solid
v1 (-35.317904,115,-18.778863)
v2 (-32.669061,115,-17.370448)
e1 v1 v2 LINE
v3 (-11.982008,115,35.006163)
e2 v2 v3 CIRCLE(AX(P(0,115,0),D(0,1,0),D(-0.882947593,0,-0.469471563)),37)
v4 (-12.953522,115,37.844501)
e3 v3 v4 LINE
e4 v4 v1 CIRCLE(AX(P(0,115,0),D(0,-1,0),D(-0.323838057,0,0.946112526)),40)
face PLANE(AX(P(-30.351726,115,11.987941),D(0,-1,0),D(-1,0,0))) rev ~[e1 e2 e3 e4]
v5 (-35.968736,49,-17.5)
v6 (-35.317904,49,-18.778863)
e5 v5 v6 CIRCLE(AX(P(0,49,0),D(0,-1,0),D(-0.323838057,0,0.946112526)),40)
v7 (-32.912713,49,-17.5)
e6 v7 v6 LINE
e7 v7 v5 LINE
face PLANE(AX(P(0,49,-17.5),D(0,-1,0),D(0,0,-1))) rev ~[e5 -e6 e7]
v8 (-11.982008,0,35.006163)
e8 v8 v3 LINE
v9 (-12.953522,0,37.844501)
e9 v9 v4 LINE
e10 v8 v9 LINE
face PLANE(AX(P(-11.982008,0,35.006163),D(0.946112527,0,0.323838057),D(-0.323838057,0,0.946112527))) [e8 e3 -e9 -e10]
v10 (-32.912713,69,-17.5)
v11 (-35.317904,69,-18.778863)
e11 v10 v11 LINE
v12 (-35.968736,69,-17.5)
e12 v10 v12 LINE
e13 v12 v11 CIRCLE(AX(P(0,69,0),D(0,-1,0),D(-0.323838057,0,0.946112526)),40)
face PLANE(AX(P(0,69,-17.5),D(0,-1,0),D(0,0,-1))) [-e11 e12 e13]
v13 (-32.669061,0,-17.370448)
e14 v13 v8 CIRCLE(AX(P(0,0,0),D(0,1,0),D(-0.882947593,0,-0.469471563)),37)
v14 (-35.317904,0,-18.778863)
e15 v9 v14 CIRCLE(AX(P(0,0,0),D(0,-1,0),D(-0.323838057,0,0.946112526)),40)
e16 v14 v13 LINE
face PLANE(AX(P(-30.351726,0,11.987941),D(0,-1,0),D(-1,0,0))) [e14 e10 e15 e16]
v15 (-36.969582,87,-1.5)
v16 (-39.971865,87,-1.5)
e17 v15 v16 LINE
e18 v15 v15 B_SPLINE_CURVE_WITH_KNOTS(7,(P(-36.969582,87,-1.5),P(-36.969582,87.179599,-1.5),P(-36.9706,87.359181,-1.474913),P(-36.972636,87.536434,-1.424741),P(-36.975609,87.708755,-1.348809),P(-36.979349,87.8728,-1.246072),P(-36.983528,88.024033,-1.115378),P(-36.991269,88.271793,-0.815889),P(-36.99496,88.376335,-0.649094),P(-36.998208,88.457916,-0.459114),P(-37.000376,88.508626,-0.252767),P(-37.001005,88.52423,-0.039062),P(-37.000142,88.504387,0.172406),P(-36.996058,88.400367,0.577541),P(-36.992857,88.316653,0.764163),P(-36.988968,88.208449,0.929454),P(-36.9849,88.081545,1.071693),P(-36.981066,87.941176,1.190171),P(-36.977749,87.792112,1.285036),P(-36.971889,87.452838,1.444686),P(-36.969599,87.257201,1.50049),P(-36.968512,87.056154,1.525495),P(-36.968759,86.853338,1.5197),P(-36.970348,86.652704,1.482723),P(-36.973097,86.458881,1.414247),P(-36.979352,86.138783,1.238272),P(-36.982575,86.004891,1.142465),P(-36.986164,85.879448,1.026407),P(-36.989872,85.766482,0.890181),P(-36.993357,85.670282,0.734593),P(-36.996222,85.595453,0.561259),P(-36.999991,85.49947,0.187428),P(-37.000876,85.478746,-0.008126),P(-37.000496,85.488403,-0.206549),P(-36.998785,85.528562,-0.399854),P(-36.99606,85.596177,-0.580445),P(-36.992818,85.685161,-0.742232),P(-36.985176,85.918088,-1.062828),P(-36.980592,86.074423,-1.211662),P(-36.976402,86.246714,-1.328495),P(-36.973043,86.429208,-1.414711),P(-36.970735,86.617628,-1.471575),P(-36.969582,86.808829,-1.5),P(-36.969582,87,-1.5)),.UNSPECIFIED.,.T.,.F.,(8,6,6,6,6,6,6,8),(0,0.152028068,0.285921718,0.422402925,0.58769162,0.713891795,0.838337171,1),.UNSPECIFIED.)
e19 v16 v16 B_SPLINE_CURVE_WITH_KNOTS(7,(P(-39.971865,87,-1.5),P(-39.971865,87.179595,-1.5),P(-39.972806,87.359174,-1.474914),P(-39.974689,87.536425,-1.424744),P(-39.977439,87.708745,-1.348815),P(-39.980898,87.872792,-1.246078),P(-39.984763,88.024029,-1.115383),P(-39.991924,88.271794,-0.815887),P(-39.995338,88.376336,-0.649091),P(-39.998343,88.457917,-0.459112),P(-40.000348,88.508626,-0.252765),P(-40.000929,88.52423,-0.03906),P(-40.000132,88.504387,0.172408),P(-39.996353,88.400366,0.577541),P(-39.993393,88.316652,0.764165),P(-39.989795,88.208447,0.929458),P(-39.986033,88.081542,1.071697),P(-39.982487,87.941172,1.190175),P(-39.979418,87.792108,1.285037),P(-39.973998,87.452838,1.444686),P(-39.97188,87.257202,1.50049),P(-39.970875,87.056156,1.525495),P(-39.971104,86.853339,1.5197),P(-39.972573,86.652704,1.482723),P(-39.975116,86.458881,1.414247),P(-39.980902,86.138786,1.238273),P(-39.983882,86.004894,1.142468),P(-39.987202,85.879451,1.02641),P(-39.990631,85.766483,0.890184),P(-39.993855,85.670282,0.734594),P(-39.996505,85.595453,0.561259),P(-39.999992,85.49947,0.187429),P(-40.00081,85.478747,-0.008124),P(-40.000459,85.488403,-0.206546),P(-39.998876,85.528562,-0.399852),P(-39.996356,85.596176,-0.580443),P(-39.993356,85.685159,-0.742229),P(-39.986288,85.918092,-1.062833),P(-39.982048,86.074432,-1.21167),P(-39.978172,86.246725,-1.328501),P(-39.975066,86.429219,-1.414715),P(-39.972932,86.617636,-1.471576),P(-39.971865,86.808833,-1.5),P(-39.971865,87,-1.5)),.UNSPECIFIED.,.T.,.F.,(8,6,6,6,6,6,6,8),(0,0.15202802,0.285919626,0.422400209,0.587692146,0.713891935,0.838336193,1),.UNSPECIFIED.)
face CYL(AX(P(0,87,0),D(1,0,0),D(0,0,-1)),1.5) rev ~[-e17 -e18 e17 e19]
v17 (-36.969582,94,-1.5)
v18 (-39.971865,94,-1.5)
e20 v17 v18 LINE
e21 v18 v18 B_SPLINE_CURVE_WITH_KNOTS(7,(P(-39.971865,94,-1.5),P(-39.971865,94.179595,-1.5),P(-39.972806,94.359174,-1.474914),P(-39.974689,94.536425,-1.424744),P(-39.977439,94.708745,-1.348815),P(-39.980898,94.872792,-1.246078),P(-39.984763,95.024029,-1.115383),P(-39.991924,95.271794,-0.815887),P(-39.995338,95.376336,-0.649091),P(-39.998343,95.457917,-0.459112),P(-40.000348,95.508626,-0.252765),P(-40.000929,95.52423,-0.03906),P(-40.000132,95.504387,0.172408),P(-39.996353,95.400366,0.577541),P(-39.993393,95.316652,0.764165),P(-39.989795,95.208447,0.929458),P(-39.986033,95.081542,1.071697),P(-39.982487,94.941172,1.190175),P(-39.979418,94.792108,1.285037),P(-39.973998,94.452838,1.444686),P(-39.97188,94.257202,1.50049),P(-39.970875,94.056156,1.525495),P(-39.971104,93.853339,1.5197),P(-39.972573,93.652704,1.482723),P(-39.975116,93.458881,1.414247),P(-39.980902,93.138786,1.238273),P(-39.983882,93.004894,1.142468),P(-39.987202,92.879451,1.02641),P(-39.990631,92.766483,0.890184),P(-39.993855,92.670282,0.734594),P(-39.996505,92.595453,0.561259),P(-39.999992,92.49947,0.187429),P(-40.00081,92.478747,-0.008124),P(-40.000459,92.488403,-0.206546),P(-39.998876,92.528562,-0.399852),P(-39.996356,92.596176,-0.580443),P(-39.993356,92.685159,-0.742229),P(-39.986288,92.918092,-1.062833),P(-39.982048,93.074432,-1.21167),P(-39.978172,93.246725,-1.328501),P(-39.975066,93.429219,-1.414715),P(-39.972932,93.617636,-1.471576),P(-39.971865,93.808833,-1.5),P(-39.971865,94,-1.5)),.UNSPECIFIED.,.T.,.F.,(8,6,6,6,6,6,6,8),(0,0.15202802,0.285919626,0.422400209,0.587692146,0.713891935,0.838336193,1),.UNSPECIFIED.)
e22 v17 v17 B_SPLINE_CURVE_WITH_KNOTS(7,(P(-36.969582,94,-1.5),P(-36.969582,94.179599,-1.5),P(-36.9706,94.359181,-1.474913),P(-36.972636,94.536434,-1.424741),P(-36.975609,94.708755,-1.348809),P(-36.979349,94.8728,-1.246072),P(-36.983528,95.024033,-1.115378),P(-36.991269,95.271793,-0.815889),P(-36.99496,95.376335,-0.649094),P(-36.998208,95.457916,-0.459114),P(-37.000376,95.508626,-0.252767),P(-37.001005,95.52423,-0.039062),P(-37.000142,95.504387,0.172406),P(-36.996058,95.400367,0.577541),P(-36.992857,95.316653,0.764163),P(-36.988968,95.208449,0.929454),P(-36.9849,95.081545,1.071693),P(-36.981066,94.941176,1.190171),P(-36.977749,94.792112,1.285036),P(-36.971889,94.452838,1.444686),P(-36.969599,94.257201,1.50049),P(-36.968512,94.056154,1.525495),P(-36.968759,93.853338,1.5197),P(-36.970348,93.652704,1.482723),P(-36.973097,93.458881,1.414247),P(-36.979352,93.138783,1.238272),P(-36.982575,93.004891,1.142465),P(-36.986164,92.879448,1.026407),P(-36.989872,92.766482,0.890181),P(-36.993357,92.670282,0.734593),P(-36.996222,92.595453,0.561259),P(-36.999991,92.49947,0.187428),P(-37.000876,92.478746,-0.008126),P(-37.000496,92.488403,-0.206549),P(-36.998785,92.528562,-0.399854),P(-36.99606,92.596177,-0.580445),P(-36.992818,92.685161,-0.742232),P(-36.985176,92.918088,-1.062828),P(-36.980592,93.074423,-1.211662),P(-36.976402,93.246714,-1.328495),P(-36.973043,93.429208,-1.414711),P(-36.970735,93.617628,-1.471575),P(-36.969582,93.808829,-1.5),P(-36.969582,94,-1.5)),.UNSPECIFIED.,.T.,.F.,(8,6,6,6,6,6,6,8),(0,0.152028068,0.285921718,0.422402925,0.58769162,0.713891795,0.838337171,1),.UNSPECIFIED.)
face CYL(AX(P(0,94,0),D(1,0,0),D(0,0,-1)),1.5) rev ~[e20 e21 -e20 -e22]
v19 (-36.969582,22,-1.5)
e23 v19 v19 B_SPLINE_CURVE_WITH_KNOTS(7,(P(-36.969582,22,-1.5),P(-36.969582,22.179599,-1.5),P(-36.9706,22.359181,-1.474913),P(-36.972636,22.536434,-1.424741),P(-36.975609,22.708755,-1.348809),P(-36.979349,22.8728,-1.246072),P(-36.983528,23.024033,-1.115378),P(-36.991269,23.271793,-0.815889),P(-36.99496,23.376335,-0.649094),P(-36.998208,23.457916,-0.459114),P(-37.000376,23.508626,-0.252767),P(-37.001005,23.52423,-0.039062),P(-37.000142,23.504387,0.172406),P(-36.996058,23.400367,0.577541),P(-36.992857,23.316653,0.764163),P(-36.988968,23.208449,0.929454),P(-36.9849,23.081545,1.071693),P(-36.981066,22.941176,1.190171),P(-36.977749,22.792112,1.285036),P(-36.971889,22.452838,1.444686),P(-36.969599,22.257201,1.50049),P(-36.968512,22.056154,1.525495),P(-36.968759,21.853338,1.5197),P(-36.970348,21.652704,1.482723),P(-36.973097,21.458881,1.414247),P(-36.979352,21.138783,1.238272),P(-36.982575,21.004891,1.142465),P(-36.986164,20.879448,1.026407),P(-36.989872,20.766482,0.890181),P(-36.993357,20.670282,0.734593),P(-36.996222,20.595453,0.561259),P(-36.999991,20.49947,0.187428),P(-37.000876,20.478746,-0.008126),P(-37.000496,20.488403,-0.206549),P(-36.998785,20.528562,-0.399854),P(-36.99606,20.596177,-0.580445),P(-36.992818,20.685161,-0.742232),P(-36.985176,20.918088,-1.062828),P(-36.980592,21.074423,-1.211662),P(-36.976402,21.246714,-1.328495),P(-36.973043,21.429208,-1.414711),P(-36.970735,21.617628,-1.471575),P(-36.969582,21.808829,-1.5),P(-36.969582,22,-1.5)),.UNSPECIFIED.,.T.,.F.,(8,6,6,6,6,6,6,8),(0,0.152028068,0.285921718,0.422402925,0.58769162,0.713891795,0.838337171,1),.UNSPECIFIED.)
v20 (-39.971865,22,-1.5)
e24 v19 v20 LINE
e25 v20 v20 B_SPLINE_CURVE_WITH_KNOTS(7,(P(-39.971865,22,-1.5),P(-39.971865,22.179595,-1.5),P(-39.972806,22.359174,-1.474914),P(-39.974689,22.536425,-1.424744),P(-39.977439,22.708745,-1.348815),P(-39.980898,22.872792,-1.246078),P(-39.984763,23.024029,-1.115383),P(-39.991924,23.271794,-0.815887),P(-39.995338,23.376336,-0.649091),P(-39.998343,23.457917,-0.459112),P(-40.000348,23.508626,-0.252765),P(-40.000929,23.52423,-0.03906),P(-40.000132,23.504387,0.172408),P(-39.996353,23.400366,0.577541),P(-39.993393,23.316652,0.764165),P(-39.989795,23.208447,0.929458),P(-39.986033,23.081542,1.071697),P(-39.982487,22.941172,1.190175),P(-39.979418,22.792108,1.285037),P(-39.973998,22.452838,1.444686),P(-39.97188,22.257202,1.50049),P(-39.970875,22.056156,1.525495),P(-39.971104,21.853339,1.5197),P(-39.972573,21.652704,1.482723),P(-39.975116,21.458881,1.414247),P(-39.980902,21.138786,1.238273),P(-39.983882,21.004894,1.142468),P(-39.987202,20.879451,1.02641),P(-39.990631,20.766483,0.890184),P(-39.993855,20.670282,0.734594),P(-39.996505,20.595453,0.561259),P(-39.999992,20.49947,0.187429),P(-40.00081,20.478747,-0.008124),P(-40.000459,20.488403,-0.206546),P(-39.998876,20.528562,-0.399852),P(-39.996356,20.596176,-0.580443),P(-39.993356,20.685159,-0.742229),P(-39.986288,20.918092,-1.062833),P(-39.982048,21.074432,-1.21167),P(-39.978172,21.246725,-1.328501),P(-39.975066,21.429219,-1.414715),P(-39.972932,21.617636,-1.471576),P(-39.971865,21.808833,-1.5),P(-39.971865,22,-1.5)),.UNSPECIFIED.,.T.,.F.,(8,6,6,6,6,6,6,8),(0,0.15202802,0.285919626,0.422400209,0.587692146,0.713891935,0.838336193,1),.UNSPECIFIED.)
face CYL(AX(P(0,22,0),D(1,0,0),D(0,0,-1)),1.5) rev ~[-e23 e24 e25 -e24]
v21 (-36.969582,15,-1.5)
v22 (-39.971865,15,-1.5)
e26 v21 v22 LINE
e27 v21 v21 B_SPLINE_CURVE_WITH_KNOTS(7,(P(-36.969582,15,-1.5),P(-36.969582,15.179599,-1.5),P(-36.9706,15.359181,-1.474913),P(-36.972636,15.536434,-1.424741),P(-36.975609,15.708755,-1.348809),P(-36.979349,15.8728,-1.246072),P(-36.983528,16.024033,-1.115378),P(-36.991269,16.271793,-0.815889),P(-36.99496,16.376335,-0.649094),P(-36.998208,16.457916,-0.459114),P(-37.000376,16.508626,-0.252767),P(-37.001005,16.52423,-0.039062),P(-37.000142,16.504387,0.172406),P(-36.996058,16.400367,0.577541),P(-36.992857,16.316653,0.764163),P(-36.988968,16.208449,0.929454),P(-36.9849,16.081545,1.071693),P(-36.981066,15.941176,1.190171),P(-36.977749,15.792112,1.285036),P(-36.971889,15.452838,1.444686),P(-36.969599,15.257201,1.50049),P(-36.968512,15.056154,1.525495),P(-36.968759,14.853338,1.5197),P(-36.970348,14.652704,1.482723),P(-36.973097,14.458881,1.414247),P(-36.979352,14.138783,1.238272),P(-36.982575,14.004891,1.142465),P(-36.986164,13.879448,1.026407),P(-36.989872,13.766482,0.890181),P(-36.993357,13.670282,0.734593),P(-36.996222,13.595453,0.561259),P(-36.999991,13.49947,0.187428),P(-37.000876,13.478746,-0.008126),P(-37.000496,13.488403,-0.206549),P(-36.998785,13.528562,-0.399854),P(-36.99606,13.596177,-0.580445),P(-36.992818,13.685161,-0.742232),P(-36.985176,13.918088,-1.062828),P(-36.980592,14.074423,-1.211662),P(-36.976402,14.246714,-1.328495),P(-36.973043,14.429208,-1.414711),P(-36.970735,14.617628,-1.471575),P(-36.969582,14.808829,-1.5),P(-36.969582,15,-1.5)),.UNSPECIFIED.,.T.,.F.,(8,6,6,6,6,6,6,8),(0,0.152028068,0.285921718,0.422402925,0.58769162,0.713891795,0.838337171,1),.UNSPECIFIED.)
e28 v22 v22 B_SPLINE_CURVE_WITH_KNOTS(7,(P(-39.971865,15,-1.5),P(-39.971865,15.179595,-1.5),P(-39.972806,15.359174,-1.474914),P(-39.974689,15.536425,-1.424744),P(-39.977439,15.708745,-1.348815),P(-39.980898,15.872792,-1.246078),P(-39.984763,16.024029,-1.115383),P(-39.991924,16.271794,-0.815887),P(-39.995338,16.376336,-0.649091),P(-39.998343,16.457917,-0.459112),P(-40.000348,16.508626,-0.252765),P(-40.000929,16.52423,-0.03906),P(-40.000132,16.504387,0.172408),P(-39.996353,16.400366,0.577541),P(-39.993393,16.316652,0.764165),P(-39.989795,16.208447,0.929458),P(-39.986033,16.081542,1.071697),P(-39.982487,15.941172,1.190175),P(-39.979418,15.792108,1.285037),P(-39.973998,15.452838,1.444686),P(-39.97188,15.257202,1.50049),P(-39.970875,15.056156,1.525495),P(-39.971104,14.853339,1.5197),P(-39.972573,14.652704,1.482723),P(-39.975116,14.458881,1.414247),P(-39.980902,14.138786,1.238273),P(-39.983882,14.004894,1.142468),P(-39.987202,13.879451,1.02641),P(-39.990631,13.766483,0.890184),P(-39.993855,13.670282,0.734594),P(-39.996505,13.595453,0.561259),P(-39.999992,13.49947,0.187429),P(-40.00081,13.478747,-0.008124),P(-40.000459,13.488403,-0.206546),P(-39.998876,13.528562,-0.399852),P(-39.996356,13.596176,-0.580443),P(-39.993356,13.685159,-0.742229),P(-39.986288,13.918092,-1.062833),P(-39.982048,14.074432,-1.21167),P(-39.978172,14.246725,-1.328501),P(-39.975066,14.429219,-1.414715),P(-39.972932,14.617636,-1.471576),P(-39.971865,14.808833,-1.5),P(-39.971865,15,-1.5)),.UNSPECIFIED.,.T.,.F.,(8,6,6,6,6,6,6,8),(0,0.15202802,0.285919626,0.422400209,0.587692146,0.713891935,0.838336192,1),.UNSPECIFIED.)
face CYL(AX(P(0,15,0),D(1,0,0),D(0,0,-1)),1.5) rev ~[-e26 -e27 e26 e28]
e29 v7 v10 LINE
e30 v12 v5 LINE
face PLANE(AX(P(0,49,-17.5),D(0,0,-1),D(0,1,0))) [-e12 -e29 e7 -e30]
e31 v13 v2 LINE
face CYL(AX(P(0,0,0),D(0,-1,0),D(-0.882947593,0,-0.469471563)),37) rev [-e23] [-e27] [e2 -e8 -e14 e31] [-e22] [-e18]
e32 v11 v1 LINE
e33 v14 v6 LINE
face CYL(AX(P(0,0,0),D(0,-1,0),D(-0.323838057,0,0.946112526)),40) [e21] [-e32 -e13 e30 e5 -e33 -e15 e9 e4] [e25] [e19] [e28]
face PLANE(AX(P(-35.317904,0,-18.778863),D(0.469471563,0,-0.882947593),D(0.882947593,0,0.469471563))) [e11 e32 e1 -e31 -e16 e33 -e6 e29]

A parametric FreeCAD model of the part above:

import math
import FreeCAD as App
import Part
import Sketcher
from FreeCAD import Vector
Q = App.Units.Quantity

doc = App.newDocument("Part")
body = doc.addObject("PartDesign::Body", "Body")

sketch1 = doc.addObject("Sketcher::SketchObject", "Sketch")
body.addObject(sketch1)
sketch1.AttachmentSupport = (doc.XZ_Plane, [""])
sketch1.MapMode = "FlatFace"
sketch1.addGeometry([
    Part.LineSegment(Vector(-12.953522, 37.844501, 0), Vector(-11.982008, 35.006163, 0)),
    Part.ArcOfCircle(Part.Circle(Vector(0, 0, 0), Vector(0, 0, 1), 37), math.radians(108.895194), math.radians(208)),
    Part.LineSegment(Vector(-32.669061, -17.370448, 0), Vector(-35.317904, -18.778863, 0)),
    Part.ArcOfCircle(Part.Circle(Vector(0, 0, 0), Vector(0, 0, 1), 40), math.radians(108.895194), math.radians(208)),
], False)
sketch1.addConstraint([
    Sketcher.Constraint("Coincident", 0, 2, 1, 1),
    Sketcher.Constraint("Coincident", 1, 2, 2, 1),
    Sketcher.Constraint("Coincident", 2, 2, 3, 2),
    Sketcher.Constraint("Coincident", 3, 1, 0, 1),
    Sketcher.Constraint("Coincident", 1, 3, -1, 1),
    Sketcher.Constraint("Coincident", 3, 3, -1, 1),
    Sketcher.Constraint("Radius", 1, Q("37 mm")),
    Sketcher.Constraint("Radius", 3, Q("40 mm")),
    Sketcher.Constraint("Angle", 2, Q("-152 deg")),
    Sketcher.Constraint("DistanceY", -1, 1, 3, 1, Q("37.844501 mm")),
    Sketcher.Constraint("DistanceX", 0, 2, -1, 1, Q("11.982008 mm")),
    Sketcher.Constraint("DistanceX", 1, 2, -1, 1, Q("32.669061 mm")),
])
pad1 = doc.addObject("PartDesign::Pad", "Pad")
body.addObject(pad1)
pad1.Profile = sketch1
pad1.Length = 115
pad1.Reversed = True

sketch2 = doc.addObject("Sketcher::SketchObject", "Sketch001")
body.addObject(sketch2)
sketch2.AttachmentSupport = (doc.YZ_Plane, [""])
sketch2.MapMode = "FlatFace"
sketch2.addGeometry([
    Part.Circle(Vector(94, 0, 0), Vector(0, 0, 1), 1.5),
    Part.Circle(Vector(87, 0, 0), Vector(0, 0, 1), 1.5),
    Part.Circle(Vector(15, 0, 0), Vector(0, 0, 1), 1.5),
    Part.Circle(Vector(22, 0, 0), Vector(0, 0, 1), 1.5),
    Part.LineSegment(Vector(69, -17.5, 0), Vector(49, -17.5, 0)),
    Part.LineSegment(Vector(49, -17.5, 0), Vector(49, -28.54445, 0)),
    Part.LineSegment(Vector(49, -28.54445, 0), Vector(69, -28.54445, 0)),
    Part.LineSegment(Vector(69, -28.54445, 0), Vector(69, -17.5, 0)),
], False)
sketch2.addConstraint([
    Sketcher.Constraint("Coincident", 4, 2, 5, 1),
    Sketcher.Constraint("Coincident", 5, 2, 6, 1),
    Sketcher.Constraint("Coincident", 6, 2, 7, 1),
    Sketcher.Constraint("Coincident", 7, 2, 4, 1),
    Sketcher.Constraint("Horizontal", 4),
    Sketcher.Constraint("Vertical", 5),
    Sketcher.Constraint("Horizontal", 6),
    Sketcher.Constraint("Vertical", 7),
    Sketcher.Constraint("Equal", 0, 1),
    Sketcher.Constraint("Equal", 1, 2),
    Sketcher.Constraint("Equal", 2, 3),
    Sketcher.Constraint("PointOnObject", 0, 3, -1),
    Sketcher.Constraint("PointOnObject", 1, 3, -1),
    Sketcher.Constraint("PointOnObject", 2, 3, -1),
    Sketcher.Constraint("PointOnObject", 3, 3, -1),
    Sketcher.Constraint("Diameter", 0, Q("3 mm")),
    Sketcher.Constraint("DistanceX", 4, 2, 4, 1, Q("20 mm")),
    Sketcher.Constraint("DistanceX", -1, 1, 0, 3, Q("94 mm")),
    Sketcher.Constraint("DistanceX", -1, 1, 1, 3, Q("87 mm")),
    Sketcher.Constraint("DistanceX", -1, 1, 2, 3, Q("15 mm")),
    Sketcher.Constraint("DistanceX", -1, 1, 3, 3, Q("22 mm")),
    Sketcher.Constraint("DistanceX", -1, 1, 4, 2, Q("49 mm")),
    Sketcher.Constraint("DistanceY", 4, 2, -1, 1, Q("17.5 mm")),
    Sketcher.Constraint("DistanceY", 5, 2, 5, 1, Q("11.04445 mm")),
])
pocket1 = doc.addObject("PartDesign::Pocket", "Pocket")
body.addObject(pocket1)
pocket1.Profile = sketch2
pocket1.Length = 120

doc.recompute()
